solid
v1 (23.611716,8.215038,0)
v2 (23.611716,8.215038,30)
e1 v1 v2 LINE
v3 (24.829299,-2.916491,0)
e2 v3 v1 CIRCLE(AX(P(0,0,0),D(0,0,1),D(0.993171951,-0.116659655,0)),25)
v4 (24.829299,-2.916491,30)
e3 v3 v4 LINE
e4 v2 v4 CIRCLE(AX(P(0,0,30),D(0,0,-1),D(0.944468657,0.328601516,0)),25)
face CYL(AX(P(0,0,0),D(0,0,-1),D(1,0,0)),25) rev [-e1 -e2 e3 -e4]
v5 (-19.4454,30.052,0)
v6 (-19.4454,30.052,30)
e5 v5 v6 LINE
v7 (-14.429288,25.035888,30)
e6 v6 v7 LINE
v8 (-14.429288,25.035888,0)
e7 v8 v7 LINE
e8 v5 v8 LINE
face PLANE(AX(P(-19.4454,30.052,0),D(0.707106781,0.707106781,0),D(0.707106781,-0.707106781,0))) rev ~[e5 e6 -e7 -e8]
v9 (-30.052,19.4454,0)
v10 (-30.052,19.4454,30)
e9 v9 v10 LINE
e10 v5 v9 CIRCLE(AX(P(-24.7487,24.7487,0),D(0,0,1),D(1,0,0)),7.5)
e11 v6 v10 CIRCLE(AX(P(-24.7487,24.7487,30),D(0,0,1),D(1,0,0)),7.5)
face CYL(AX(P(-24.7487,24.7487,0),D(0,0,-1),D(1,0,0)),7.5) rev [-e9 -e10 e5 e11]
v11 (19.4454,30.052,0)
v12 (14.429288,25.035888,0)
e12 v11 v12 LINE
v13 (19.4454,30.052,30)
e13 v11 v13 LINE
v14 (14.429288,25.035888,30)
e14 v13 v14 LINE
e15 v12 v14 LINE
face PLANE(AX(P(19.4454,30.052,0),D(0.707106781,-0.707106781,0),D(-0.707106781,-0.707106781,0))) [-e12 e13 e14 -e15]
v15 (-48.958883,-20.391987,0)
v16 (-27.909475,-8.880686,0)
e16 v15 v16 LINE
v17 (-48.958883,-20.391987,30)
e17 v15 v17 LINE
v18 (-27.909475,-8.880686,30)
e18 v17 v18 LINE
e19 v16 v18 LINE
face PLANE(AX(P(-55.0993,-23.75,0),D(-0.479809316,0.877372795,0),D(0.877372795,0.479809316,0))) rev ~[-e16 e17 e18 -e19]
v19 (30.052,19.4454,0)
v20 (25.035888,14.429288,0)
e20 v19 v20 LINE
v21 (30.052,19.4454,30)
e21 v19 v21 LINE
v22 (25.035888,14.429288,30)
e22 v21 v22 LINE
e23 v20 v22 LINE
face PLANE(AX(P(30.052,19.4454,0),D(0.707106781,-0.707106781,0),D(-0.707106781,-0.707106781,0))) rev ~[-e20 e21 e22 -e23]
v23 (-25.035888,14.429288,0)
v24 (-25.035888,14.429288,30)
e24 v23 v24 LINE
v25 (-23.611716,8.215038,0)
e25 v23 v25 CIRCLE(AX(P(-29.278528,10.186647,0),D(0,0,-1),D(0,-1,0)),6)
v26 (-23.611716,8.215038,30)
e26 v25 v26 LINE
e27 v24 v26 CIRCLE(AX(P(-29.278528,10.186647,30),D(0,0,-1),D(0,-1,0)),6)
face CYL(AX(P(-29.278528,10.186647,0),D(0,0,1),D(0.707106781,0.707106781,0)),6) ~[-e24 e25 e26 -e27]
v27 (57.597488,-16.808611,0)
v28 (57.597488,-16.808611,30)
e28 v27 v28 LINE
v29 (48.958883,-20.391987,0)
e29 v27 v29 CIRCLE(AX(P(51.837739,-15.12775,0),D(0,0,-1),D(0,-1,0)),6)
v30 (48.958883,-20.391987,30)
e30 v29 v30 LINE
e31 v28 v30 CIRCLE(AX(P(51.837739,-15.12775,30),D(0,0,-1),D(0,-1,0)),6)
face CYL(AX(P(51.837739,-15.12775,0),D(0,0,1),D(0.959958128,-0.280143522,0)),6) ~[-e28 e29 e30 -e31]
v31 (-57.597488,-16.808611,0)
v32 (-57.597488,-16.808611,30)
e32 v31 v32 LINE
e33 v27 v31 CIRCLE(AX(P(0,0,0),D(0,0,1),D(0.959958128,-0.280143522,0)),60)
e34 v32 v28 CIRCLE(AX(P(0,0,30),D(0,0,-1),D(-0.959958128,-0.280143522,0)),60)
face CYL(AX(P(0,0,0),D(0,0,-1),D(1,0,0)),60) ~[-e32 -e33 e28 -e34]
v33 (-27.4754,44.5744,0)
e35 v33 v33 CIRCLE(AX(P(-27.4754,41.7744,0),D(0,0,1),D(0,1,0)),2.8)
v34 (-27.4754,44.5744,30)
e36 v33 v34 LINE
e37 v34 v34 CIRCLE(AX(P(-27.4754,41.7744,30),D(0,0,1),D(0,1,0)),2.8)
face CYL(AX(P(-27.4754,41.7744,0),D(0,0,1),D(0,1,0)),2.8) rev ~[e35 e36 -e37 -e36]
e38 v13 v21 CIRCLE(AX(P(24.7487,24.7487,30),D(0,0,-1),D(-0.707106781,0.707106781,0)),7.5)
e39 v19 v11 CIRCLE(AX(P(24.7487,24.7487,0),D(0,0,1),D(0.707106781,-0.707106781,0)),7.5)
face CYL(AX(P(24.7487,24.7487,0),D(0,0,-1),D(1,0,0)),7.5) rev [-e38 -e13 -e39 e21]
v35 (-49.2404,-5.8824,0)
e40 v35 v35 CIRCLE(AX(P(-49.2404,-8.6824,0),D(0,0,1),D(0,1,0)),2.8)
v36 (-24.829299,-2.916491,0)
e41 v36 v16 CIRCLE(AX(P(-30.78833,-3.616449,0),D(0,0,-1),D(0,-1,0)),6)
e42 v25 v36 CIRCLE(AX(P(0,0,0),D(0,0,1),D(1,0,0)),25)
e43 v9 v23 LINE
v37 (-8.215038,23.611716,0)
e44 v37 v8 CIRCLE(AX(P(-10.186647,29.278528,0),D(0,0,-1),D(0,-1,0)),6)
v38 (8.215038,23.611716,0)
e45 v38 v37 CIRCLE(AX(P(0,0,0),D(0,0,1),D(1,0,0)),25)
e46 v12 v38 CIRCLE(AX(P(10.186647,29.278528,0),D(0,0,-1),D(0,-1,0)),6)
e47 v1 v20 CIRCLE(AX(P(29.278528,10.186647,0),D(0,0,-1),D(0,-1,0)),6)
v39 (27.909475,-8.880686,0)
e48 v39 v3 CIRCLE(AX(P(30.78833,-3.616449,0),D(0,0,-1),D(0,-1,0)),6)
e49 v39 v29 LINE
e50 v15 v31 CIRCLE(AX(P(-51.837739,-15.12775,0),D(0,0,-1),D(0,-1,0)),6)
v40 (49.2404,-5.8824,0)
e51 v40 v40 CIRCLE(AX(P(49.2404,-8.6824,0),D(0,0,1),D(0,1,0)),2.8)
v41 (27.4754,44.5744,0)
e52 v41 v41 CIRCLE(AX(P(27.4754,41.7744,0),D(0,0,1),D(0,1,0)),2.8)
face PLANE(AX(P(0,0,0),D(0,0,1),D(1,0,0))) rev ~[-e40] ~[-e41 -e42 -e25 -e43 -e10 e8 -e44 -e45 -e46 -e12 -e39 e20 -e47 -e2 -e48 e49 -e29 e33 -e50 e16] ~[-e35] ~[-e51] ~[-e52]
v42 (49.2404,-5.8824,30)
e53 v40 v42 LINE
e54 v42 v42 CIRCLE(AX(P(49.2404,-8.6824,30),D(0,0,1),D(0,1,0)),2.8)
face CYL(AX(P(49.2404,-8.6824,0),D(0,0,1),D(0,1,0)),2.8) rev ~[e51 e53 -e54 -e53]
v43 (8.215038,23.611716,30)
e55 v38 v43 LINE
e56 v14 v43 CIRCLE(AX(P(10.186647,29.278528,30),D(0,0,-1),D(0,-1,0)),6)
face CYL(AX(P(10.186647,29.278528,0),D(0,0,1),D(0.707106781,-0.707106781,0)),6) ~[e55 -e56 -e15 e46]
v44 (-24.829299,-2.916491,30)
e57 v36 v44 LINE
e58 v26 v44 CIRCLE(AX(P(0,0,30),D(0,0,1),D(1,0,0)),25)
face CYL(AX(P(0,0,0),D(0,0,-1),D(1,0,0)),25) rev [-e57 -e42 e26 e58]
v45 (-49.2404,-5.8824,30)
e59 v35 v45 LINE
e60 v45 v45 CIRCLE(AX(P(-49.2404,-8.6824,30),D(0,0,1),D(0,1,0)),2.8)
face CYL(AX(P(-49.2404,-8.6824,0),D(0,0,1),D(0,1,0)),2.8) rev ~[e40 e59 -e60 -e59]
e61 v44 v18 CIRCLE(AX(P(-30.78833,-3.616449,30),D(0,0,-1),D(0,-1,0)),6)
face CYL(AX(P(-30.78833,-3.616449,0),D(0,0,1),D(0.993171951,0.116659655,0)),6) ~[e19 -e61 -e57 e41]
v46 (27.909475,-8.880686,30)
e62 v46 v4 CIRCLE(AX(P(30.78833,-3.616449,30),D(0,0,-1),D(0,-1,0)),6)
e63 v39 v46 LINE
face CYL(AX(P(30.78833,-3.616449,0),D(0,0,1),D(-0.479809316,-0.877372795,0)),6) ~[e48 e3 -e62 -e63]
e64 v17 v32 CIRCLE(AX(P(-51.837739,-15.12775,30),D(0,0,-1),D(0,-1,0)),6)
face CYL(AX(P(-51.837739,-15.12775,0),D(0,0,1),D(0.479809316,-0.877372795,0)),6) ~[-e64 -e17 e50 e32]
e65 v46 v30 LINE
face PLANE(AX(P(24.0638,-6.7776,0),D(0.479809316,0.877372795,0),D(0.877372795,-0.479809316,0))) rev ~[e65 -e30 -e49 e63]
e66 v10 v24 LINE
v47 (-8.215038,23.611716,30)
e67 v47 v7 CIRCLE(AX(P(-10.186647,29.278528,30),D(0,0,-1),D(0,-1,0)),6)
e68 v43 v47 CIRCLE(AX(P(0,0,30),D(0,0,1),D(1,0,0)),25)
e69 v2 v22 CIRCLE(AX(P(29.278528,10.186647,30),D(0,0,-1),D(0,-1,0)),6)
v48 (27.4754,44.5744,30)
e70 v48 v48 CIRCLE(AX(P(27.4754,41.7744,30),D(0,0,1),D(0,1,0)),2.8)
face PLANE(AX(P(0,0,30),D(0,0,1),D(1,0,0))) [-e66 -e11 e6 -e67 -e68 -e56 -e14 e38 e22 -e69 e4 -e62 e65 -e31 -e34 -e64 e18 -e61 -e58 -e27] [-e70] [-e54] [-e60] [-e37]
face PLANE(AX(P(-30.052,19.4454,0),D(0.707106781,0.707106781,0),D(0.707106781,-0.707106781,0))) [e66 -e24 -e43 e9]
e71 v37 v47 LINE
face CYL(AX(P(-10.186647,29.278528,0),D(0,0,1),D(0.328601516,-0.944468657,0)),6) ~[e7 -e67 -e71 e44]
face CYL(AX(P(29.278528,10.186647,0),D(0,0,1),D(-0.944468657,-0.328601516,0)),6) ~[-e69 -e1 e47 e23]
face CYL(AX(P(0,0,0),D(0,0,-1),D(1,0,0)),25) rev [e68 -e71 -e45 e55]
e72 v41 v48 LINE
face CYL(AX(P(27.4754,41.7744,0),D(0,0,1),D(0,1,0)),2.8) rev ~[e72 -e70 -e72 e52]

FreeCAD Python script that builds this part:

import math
import FreeCAD as App
import Part
import Sketcher
from FreeCAD import Vector
Q = App.Units.Quantity


def edges_at(feature, points):
    """Names of the edges that pass closest to the given points."""
    edges = feature.Shape.Edges
    near = lambda p: min(range(len(edges)), key=lambda i: edges[i].distToShape(Part.Vertex(*p))[0])
    return sorted({f"Edge{near(p) + 1}" for p in points})

doc = App.newDocument("Part")
params = doc.addObject("Spreadsheet::Sheet", "Params")
for row, (alias, value) in enumerate([
    ("sketch1_radius", "60 mm"),
    ("sketch1_radius2", "25 mm"),
    ("sketch1_radius3", "7.5 mm"),
    ("pad1_length", "30 mm"),
    ("fillet_radius", "6 mm"),
    ("sketch2_diameter", "5.6 mm"),
    ("hole_diameter", "5.6 mm"),
], start=1):
    params.set(f"A{row}", alias)
    params.set(f"B{row}", "=" + value)
    params.setAlias(f"B{row}", alias)

body = doc.addObject("PartDesign::Body", "Body")

sketch1 = doc.addObject("Sketcher::SketchObject", "Sketch")
body.addObject(sketch1)
sketch1.AttachmentSupport = (doc.XY_Plane, [""])
sketch1.MapMode = "FlatFace"
sketch1.addGeometry([
    Part.ArcOfCircle(Part.Circle(Vector(0, 0, 0), Vector(0, 0, 1), 60), math.radians(-23.317973), math.radians(203.317973)),
    Part.LineSegment(Vector(-55.0993, -23.75, 0), Vector(-24.0638, -6.7776, 0)),
    Part.ArcOfCircle(Part.Circle(Vector(0, 0, 0), Vector(0, 0, 1), 25), math.radians(152.457622), math.radians(195.729942)),
    Part.LineSegment(Vector(-22.1667, 11.5601, 0), Vector(-30.052, 19.4454, 0)),
    Part.ArcOfCircle(Part.Circle(Vector(-24.7487, 24.7487, 0), Vector(0, 0, 1), 7.5), math.radians(45), math.radians(225)),
    Part.LineSegment(Vector(-19.4454, 30.052, 0), Vector(-11.5601, 22.1667, 0)),
    Part.ArcOfCircle(Part.Circle(Vector(0, 0, 0), Vector(0, 0, 1), 25), math.radians(62.457622), math.radians(117.542378)),
    Part.LineSegment(Vector(11.5601, 22.1667, 0), Vector(19.4454, 30.052, 0)),
    Part.ArcOfCircle(Part.Circle(Vector(24.7487, 24.7487, 0), Vector(0, 0, 1), 7.5), math.radians(-45), math.radians(135)),
    Part.LineSegment(Vector(30.052, 19.4454, 0), Vector(22.1667, 11.5601, 0)),
    Part.ArcOfCircle(Part.Circle(Vector(0, 0, 0), Vector(0, 0, 1), 25), math.radians(-15.729942), math.radians(27.542378)),
    Part.LineSegment(Vector(24.0638, -6.7776, 0), Vector(55.0993, -23.75, 0)),
], False)
sketch1.addConstraint([
    Sketcher.Constraint("Coincident", 0, 2, 1, 1),
    Sketcher.Constraint("Coincident", 1, 2, 2, 2),
    Sketcher.Constraint("Coincident", 2, 1, 3, 1),
    Sketcher.Constraint("Tangent", 3, 2, 4, 2),
    Sketcher.Constraint("Tangent", 4, 1, 5, 1),
    Sketcher.Constraint("Coincident", 5, 2, 6, 2),
    Sketcher.Constraint("Coincident", 6, 1, 7, 1),
    Sketcher.Constraint("Tangent", 7, 2, 8, 2),
    Sketcher.Constraint("Tangent", 8, 1, 9, 1),
    Sketcher.Constraint("Coincident", 9, 2, 10, 2),
    Sketcher.Constraint("Coincident", 10, 1, 11, 1),
    Sketcher.Constraint("Coincident", 11, 2, 0, 1),
    Sketcher.Constraint("Coincident", 0, 3, -1, 1),
    Sketcher.Constraint("Coincident", 2, 3, -1, 1),
    Sketcher.Constraint("Coincident", 6, 3, -1, 1),
    Sketcher.Constraint("Coincident", 10, 3, -1, 1),
    Sketcher.Constraint("Equal", 2, 6),
    Sketcher.Constraint("Equal", 4, 8),
    Sketcher.Constraint("Equal", 6, 10),
    Sketcher.Constraint("Symmetric", 4, 3, 8, 3, -2),
    Sketcher.Constraint("Parallel", 3, 5),
    Sketcher.Constraint("Perpendicular", 5, 7),
    Sketcher.Constraint("Parallel", 7, 9),
    Sketcher.Constraint("Horizontal", 5, 2, 6, 1),
    Sketcher.Constraint("Horizontal", 1, 2, 10, 1),
    Sketcher.Constraint("Horizontal", 0, 2, 11, 2),
    Sketcher.Constraint("Equal", 3, 5),
    Sketcher.Constraint("Radius", 0, Q("60 mm")),
    Sketcher.Constraint("Radius", 2, Q("25 mm")),
    Sketcher.Constraint("Radius", 4, Q("7.5 mm")),
    Sketcher.Constraint("DistanceY", 0, 2, -1, 1, Q("23.75 mm")),
    Sketcher.Constraint("DistanceX", 3, 2, -1, 1, Q("30.052 mm")),
    Sketcher.Constraint("DistanceX", 4, 3, 1, 2, Q("0.685 mm")),
])
sketch1.setExpression("Constraints[27]", "Params.sketch1_radius")
sketch1.setExpression("Constraints[28]", "Params.sketch1_radius2")
sketch1.setExpression("Constraints[29]", "Params.sketch1_radius3")
pad1 = doc.addObject("PartDesign::Pad", "Pad")
body.addObject(pad1)
pad1.Profile = sketch1
pad1.setExpression("Length", "Params.pad1_length")
doc.recompute()

fillet = doc.addObject("PartDesign::Fillet", "Fillet")
body.addObject(fillet)
fillet.Base = (pad1, edges_at(pad1, [
    (24.064, -6.778, 15),
    (-24.064, -6.778, 15),
    (-22.167, 11.56, 15),
    (-11.56, 22.167, 15),
    (11.56, 22.167, 15),
    (22.167, 11.56, 15),
    (-55.099, -23.75, 15),
    (55.099, -23.75, 15),
]))
fillet.setExpression("Radius", "Params.fillet_radius")

sketch2 = doc.addObject("Sketcher::SketchObject", "Sketch001")
body.addObject(sketch2)
sketch2.AttachmentSupport = (doc.XY_Plane, [""])
sketch2.MapMode = "FlatFace"
sketch2.addGeometry([
    Part.Circle(Vector(-49.2404, -8.6824, 0), Vector(0, 0, 1), 2.8),
    Part.Circle(Vector(-27.4754, 41.7744, 0), Vector(0, 0, 1), 2.8),
    Part.Circle(Vector(27.4754, 41.7744, 0), Vector(0, 0, 1), 2.8),
    Part.Circle(Vector(49.2404, -8.6824, 0), Vector(0, 0, 1), 2.8),
], False)
sketch2.addConstraint([
    Sketcher.Constraint("Equal", 0, 1),
    Sketcher.Constraint("Equal", 1, 2),
    Sketcher.Constraint("Equal", 2, 3),
    Sketcher.Constraint("Symmetric", 1, 3, 2, 3, -2),
    Sketcher.Constraint("Symmetric", 0, 3, 3, 3, -2),
    Sketcher.Constraint("Diameter", 0, Q("5.6 mm")),
    Sketcher.Constraint("DistanceX", 0, 3, 1, 3, Q("21.765 mm")),
    Sketcher.Constraint("DistanceX", 0, 3, -1, 1, Q("49.2404 mm")),
    Sketcher.Constraint("DistanceY", 0, 3, -1, 1, Q("8.6824 mm")),
    Sketcher.Constraint("DistanceY", -1, 1, 1, 3, Q("41.7744 mm")),
])
sketch2.setExpression("Constraints[5]", "Params.sketch2_diameter")
doc.recompute()
hole = doc.addObject("PartDesign::Hole", "Hole")
body.addObject(hole)
hole.Profile = sketch2
hole.ThreadType = "None"
hole.setExpression("Diameter", "Params.hole_diameter")
hole.DepthType = "ThroughAll"
hole.Reversed = True

doc.recompute()
